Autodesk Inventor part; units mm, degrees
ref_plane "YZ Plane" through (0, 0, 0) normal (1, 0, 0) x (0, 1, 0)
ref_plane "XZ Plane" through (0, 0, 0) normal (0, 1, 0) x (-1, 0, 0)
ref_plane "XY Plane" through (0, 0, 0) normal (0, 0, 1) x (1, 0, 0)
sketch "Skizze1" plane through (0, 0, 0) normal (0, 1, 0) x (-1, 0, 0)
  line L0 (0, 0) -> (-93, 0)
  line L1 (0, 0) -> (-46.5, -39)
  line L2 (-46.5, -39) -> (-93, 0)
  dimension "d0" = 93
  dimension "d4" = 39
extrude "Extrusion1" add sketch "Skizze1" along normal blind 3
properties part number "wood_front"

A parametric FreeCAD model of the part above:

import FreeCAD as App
import Part
import Sketcher
from FreeCAD import Vector


def add_polygon(sketch, points):
    """Adds a closed chain of lines whose ends are joined by coincident constraints."""
    first, n = sketch.GeometryCount, len(points)
    for a, b in zip(points, points[1:] + points[:1]):
        sketch.addGeometry(Part.LineSegment(App.Vector(*a, 0), App.Vector(*b, 0)), False)
    for i in range(n):
        sketch.addConstraint(Sketcher.Constraint("Coincident", first + i, 2, first + (i + 1) % n, 1))

doc = App.newDocument("Part")
body = doc.addObject("PartDesign::Body", "Body")

# Sketch on XZ plane
sketch1 = body.newObject("Sketcher::SketchObject", "Sketch")
sketch1.AttachmentSupport = (doc.getObject("XZ_Plane"), [""])
sketch1.MapMode = "FlatFace"
add_polygon(sketch1, [(46, -39), (0, 0), (93, 0)])  # lines 0-2
sketch1.addConstraint(Sketcher.Constraint("Horizontal", 1))
sketch1.addConstraint(Sketcher.Constraint("Coincident", 0, 2, -1, 1))
sketch1.addConstraint(Sketcher.Constraint("Equal", 0, 2))
sketch1.addConstraint(Sketcher.Constraint("DistanceX", 1, 1, 1, 2, 93.0))
sketch1.addConstraint(Sketcher.Constraint("DistanceY", 2, 2, -1, 1, 39.0))
pad1 = body.newObject("PartDesign::Pad", "Pad")
pad1.Profile = sketch1
pad1.Length = 3
pad1.Reversed = True

doc.recompute()
